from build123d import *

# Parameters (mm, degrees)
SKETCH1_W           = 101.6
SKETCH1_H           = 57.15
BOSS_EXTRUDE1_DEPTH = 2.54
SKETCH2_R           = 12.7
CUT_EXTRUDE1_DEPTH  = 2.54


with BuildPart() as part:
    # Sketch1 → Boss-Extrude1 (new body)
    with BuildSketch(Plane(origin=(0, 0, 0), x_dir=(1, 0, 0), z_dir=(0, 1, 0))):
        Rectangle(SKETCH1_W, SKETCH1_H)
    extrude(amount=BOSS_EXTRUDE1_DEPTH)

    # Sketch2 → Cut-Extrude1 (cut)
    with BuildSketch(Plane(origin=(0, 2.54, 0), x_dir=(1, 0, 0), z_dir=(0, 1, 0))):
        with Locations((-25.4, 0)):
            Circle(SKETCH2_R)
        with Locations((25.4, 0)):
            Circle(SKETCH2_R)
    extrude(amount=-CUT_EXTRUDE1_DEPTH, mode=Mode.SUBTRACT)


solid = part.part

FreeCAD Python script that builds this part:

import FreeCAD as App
import Part
import Sketcher

V = App.Vector
Q = App.Units.Quantity

doc = App.newDocument("Part")
body = doc.addObject("PartDesign::Body", "Body")

sketch1 = body.newObject("Sketcher::SketchObject", "Sketch")
sketch1.AttachmentSupport = (doc.getObject("XZ_Plane"), [""])
sketch1.MapMode = "FlatFace"
sketch1.addGeometry([
    Part.LineSegment(V(-51, -29, 0), V(-51, 29, 0)),
    Part.LineSegment(V(-51, 29, 0), V(51, 29, 0)),
    Part.LineSegment(V(51, 29, 0), V(51, -29, 0)),
    Part.LineSegment(V(51, -29, 0), V(-51, -29, 0)),
], False)
sketch1.addConstraint([
    Sketcher.Constraint("Coincident", 0, 2, 1, 1),
    Sketcher.Constraint("Coincident", 1, 2, 2, 1),
    Sketcher.Constraint("Coincident", 2, 2, 3, 1),
    Sketcher.Constraint("Coincident", 3, 2, 0, 1),
    Sketcher.Constraint("Vertical", 0),
    Sketcher.Constraint("Horizontal", 1),
    Sketcher.Constraint("Vertical", 2),
    Sketcher.Constraint("Horizontal", 3),
    Sketcher.Constraint("Symmetric", 0, 2, 2, 2, -1, 1),
    Sketcher.Constraint("DistanceX", 1, 1, 1, 2, Q("4 in")),
    Sketcher.Constraint("DistanceY", 0, 1, 0, 2, Q("2.25 in")),
])
pad1 = body.newObject("PartDesign::Pad", "Pad")
pad1.Profile = sketch1
pad1.Length = Q("0.1 in")
pad1.Reversed = True

sketch2 = body.newObject("Sketcher::SketchObject", "Sketch001")
sketch2.AttachmentSupport = (doc.getObject("XZ_Plane"), [""])
sketch2.MapMode = "FlatFace"
sketch2.AttachmentOffset = App.Placement(V(0, 0, -0.1 * 25.4), App.Rotation())
sketch2.addGeometry([
    Part.Circle(V(-25, 0, 0), V(0, 0, 1), 13),
    Part.Circle(V(25, 0, 0), V(0, 0, 1), 13),
], False)
sketch2.addConstraint([
    Sketcher.Constraint("Equal", 0, 1),
    Sketcher.Constraint("Symmetric", 0, 3, 1, 3, -1, 1),
    Sketcher.Constraint("PointOnObject", 0, 3, -1),
    Sketcher.Constraint("Diameter", 0, Q("1 in")),
    Sketcher.Constraint("DistanceX", 0, 3, -1, 1, Q("1 in")),
])
pocket1 = body.newObject("PartDesign::Pocket", "Pocket")
pocket1.Profile = sketch2
pocket1.Length = Q("0.1 in")
pocket1.Reversed = True

doc.recompute()
